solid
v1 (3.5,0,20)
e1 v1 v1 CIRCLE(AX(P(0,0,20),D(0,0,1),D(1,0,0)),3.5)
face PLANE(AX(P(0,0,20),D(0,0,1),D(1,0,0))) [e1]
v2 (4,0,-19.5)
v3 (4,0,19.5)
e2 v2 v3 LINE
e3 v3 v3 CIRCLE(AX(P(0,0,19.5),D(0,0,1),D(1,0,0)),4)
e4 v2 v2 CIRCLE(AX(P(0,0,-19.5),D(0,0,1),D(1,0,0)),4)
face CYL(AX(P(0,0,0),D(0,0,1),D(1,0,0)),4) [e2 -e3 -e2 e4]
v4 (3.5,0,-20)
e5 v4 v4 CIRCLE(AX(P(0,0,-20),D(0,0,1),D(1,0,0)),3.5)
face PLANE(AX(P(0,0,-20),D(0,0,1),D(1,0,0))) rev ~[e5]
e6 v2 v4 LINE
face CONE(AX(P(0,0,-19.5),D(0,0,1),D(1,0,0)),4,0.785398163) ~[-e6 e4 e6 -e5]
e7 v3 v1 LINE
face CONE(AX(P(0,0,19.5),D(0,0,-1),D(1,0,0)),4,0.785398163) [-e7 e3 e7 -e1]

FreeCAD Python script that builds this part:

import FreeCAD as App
import Part
import Sketcher
from FreeCAD import Vector
Q = App.Units.Quantity


def edges_at(feature, points):
    """Names of the edges that pass closest to the given points."""
    edges = feature.Shape.Edges
    near = lambda p: min(range(len(edges)), key=lambda i: edges[i].distToShape(Part.Vertex(*p))[0])
    return sorted({f"Edge{near(p) + 1}" for p in points})

doc = App.newDocument("Part")
body = doc.addObject("PartDesign::Body", "Body")

# Sketch on XY plane
sketch1 = body.newObject("Sketcher::SketchObject", "Sketch")
sketch1.AttachmentSupport = (doc.getObject("XY_Plane"), [""])
sketch1.MapMode = "FlatFace"
sketch1.addGeometry(Part.Circle(Vector(0, 0, 0), Vector(0, 0, 1), 4), False)
sketch1.addConstraint([
    Sketcher.Constraint("Coincident", 0, 3, -1, 1),
    Sketcher.Constraint("Diameter", 0, Q("8 mm")),
])
pad1 = body.newObject("PartDesign::Pad", "Pad")
pad1.Profile = sketch1
pad1.Length = 40
pad1.Midplane = True
doc.recompute()

chamfer = body.newObject("PartDesign::Chamfer", "Chamfer")
chamfer.Base = (pad1, edges_at(pad1, [(-4, 0, -20), (-4, 0, 20)]))
chamfer.Size = 0.5

doc.recompute()
